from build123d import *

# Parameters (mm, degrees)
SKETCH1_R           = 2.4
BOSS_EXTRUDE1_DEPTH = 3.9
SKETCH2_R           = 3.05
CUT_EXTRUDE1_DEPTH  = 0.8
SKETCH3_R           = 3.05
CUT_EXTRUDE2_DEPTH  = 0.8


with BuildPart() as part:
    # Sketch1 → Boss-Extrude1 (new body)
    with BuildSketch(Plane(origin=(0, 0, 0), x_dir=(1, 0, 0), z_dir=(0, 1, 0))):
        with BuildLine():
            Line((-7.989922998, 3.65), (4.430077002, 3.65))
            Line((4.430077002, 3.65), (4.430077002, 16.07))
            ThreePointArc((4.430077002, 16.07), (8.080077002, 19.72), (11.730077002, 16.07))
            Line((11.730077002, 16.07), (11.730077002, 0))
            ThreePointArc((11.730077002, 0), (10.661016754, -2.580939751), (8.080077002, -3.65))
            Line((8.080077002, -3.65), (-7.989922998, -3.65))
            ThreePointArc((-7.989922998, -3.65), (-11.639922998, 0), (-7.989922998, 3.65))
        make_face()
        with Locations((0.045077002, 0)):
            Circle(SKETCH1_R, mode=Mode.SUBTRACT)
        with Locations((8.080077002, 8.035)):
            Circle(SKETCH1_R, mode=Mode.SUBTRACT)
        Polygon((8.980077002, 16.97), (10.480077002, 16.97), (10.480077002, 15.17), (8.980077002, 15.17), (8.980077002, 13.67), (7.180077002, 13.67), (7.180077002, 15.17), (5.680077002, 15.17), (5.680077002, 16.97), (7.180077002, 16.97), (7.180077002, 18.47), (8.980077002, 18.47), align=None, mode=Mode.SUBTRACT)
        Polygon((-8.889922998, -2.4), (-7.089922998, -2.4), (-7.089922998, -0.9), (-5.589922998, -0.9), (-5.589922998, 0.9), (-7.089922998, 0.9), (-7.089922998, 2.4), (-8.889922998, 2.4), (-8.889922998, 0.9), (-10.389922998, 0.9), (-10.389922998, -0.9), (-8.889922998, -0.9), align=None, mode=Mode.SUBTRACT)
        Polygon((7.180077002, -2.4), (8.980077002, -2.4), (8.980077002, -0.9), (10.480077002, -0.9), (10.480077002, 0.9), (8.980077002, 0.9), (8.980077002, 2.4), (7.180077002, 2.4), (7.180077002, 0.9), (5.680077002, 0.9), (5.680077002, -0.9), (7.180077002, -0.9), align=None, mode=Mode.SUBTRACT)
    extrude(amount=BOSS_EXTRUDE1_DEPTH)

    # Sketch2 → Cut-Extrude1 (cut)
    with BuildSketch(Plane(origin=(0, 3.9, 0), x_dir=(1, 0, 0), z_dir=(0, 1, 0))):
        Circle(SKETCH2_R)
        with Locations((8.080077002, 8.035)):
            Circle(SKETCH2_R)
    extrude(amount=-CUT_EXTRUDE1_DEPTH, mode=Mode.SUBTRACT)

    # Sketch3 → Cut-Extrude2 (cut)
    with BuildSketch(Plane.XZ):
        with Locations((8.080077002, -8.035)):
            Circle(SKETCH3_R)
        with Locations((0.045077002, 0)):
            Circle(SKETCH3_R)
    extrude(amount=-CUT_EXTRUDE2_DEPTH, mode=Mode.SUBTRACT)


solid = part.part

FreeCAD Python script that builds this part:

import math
import FreeCAD as App
import Part
import Sketcher

V = App.Vector
Q = App.Units.Quantity

doc = App.newDocument("Part")
body = doc.addObject("PartDesign::Body", "Body")

# Sketch on XZ plane
sketch1 = body.newObject("Sketcher::SketchObject", "Sketch")
sketch1.AttachmentSupport = (doc.getObject("XZ_Plane"), [""])
sketch1.MapMode = "FlatFace"
sketch1.addGeometry([
    Part.LineSegment(V(4.430077, -3.65, 0), V(-7.989923, -3.65, 0)),  # 0
    Part.ArcOfCircle(Part.Circle(V(-7.989923, 0, 0), V(0, 0, 1), 3.65), math.radians(90), math.radians(270)),  # 1
    Part.LineSegment(V(-7.989923, 3.65, 0), V(8.080077, 3.65, 0)),  # 2
    Part.ArcOfCircle(Part.Circle(V(8.080077, 0, 0), V(0, 0, 1), 3.65), math.radians(0), math.radians(90)),  # 3
    Part.LineSegment(V(11.730077, 0, 0), V(11.730077, -16.07, 0)),  # 4
    Part.ArcOfCircle(Part.Circle(V(8.080077, -16.07, 0), V(0, 0, 1), 3.65), math.radians(180), math.radians(360)),  # 5
    Part.LineSegment(V(4.430077, -16.07, 0), V(4.430077, -3.65, 0)),  # 6
    Part.LineSegment(V(7.180077, 2.4, 0), V(7.180077, 0.9, 0)),  # 7
    Part.LineSegment(V(7.180077, 0.9, 0), V(5.680077, 0.9, 0)),  # 8
    Part.LineSegment(V(5.680077, 0.9, 0), V(5.680077, -0.9, 0)),  # 9
    Part.LineSegment(V(5.680077, -0.9, 0), V(7.180077, -0.9, 0)),  # 10
    Part.LineSegment(V(7.180077, -0.9, 0), V(7.180077, -2.4, 0)),  # 11
    Part.LineSegment(V(7.180077, -2.4, 0), V(8.980077, -2.4, 0)),  # 12
    Part.LineSegment(V(8.980077, -2.4, 0), V(8.980077, -0.9, 0)),  # 13
    Part.LineSegment(V(8.980077, -0.9, 0), V(10.480077, -0.9, 0)),  # 14
    Part.LineSegment(V(10.480077, -0.9, 0), V(10.480077, 0.9, 0)),  # 15
    Part.LineSegment(V(10.480077, 0.9, 0), V(8.980077, 0.9, 0)),  # 16
    Part.LineSegment(V(8.980077, 0.9, 0), V(8.980077, 2.4, 0)),  # 17
    Part.LineSegment(V(8.980077, 2.4, 0), V(7.180077, 2.4, 0)),  # 18
    Part.Circle(V(0.045077, 0, 0), V(0, 0, 1), 2.4),  # 19
    Part.LineSegment(V(-8.889923, 2.4, 0), V(-8.889923, 0.9, 0)),  # 20
    Part.LineSegment(V(-8.889923, 0.9, 0), V(-10.389923, 0.9, 0)),  # 21
    Part.LineSegment(V(-10.389923, 0.9, 0), V(-10.389923, -0.9, 0)),  # 22
    Part.LineSegment(V(-10.389923, -0.9, 0), V(-8.889923, -0.9, 0)),  # 23
    Part.LineSegment(V(-8.889923, -0.9, 0), V(-8.889923, -2.4, 0)),  # 24
    Part.LineSegment(V(-8.889923, -2.4, 0), V(-7.089923, -2.4, 0)),  # 25
    Part.LineSegment(V(-7.089923, -2.4, 0), V(-7.089923, -0.9, 0)),  # 26
    Part.LineSegment(V(-7.089923, -0.9, 0), V(-5.589923, -0.9, 0)),  # 27
    Part.LineSegment(V(-5.589923, -0.9, 0), V(-5.589923, 0.9, 0)),  # 28
    Part.LineSegment(V(-5.589923, 0.9, 0), V(-7.089923, 0.9, 0)),  # 29
    Part.LineSegment(V(-7.089923, 0.9, 0), V(-7.089923, 2.4, 0)),  # 30
    Part.LineSegment(V(-7.089923, 2.4, 0), V(-8.889923, 2.4, 0)),  # 31
    Part.Circle(V(8.080077, -8.035, 0), V(0, 0, 1), 2.4),  # 32
    Part.LineSegment(V(8.980077, -16.97, 0), V(10.480077, -16.97, 0)),  # 33
    Part.LineSegment(V(10.480077, -16.97, 0), V(10.480077, -15.17, 0)),  # 34
    Part.LineSegment(V(10.480077, -15.17, 0), V(8.980077, -15.17, 0)),  # 35
    Part.LineSegment(V(8.980077, -15.17, 0), V(8.980077, -13.67, 0)),  # 36
    Part.LineSegment(V(8.980077, -13.67, 0), V(7.180077, -13.67, 0)),  # 37
    Part.LineSegment(V(7.180077, -13.67, 0), V(7.180077, -15.17, 0)),  # 38
    Part.LineSegment(V(7.180077, -15.17, 0), V(5.680077, -15.17, 0)),  # 39
    Part.LineSegment(V(5.680077, -15.17, 0), V(5.680077, -16.97, 0)),  # 40
    Part.LineSegment(V(5.680077, -16.97, 0), V(7.180077, -16.97, 0)),  # 41
    Part.LineSegment(V(7.180077, -16.97, 0), V(7.180077, -18.47, 0)),  # 42
    Part.LineSegment(V(7.180077, -18.47, 0), V(8.980077, -18.47, 0)),  # 43
    Part.LineSegment(V(8.980077, -18.47, 0), V(8.980077, -16.97, 0)),  # 44
], False)
sketch1.addConstraint([
    Sketcher.Constraint("Tangent", 0, 2, 1, 2),
    Sketcher.Constraint("Tangent", 1, 1, 2, 1),
    Sketcher.Constraint("Tangent", 2, 2, 3, 2),
    Sketcher.Constraint("Tangent", 3, 1, 4, 1),
    Sketcher.Constraint("Tangent", 4, 2, 5, 2),
    Sketcher.Constraint("Tangent", 5, 1, 6, 1),
    Sketcher.Constraint("Coincident", 6, 2, 0, 1),
    Sketcher.Constraint("Coincident", 7, 2, 8, 1),
    Sketcher.Constraint("Coincident", 8, 2, 9, 1),
    Sketcher.Constraint("Coincident", 9, 2, 10, 1),
    Sketcher.Constraint("Coincident", 10, 2, 11, 1),
    Sketcher.Constraint("Coincident", 11, 2, 12, 1),
    Sketcher.Constraint("Coincident", 12, 2, 13, 1),
    Sketcher.Constraint("Coincident", 13, 2, 14, 1),
    Sketcher.Constraint("Coincident", 14, 2, 15, 1),
    Sketcher.Constraint("Coincident", 15, 2, 16, 1),
    Sketcher.Constraint("Coincident", 16, 2, 17, 1),
    Sketcher.Constraint("Coincident", 17, 2, 18, 1),
    Sketcher.Constraint("Coincident", 18, 2, 7, 1),
    Sketcher.Constraint("Coincident", 20, 2, 21, 1),
    Sketcher.Constraint("Coincident", 21, 2, 22, 1),
    Sketcher.Constraint("Coincident", 22, 2, 23, 1),
    Sketcher.Constraint("Coincident", 23, 2, 24, 1),
    Sketcher.Constraint("Coincident", 24, 2, 25, 1),
    Sketcher.Constraint("Coincident", 25, 2, 26, 1),
    Sketcher.Constraint("Coincident", 26, 2, 27, 1),
    Sketcher.Constraint("Coincident", 27, 2, 28, 1),
    Sketcher.Constraint("Coincident", 28, 2, 29, 1),
    Sketcher.Constraint("Coincident", 29, 2, 30, 1),
    Sketcher.Constraint("Coincident", 30, 2, 31, 1),
    Sketcher.Constraint("Coincident", 31, 2, 20, 1),
    Sketcher.Constraint("Coincident", 33, 2, 34, 1),
    Sketcher.Constraint("Coincident", 34, 2, 35, 1),
    Sketcher.Constraint("Coincident", 35, 2, 36, 1),
    Sketcher.Constraint("Coincident", 36, 2, 37, 1),
    Sketcher.Constraint("Coincident", 37, 2, 38, 1),
    Sketcher.Constraint("Coincident", 38, 2, 39, 1),
    Sketcher.Constraint("Coincident", 39, 2, 40, 1),
    Sketcher.Constraint("Coincident", 40, 2, 41, 1),
    Sketcher.Constraint("Coincident", 41, 2, 42, 1),
    Sketcher.Constraint("Coincident", 42, 2, 43, 1),
    Sketcher.Constraint("Coincident", 43, 2, 44, 1),
    Sketcher.Constraint("Coincident", 44, 2, 33, 1),
    Sketcher.Constraint("Horizontal", 0),
    Sketcher.Constraint("Horizontal", 2),
    Sketcher.Constraint("Vertical", 4),
    Sketcher.Constraint("Vertical", 6),
    Sketcher.Constraint("Vertical", 7),
    Sketcher.Constraint("Horizontal", 8),
    Sketcher.Constraint("Vertical", 9),
    Sketcher.Constraint("Horizontal", 10),
    Sketcher.Constraint("Vertical", 11),
    Sketcher.Constraint("Horizontal", 12),
    Sketcher.Constraint("Vertical", 13),
    Sketcher.Constraint("Horizontal", 14),
    Sketcher.Constraint("Vertical", 15),
    Sketcher.Constraint("Horizontal", 16),
    Sketcher.Constraint("Vertical", 17),
    Sketcher.Constraint("Horizontal", 18),
    Sketcher.Constraint("Vertical", 20),
    Sketcher.Constraint("Horizontal", 21),
    Sketcher.Constraint("Vertical", 22),
    Sketcher.Constraint("Horizontal", 23),
    Sketcher.Constraint("Vertical", 24),
    Sketcher.Constraint("Horizontal", 25),
    Sketcher.Constraint("Vertical", 26),
    Sketcher.Constraint("Horizontal", 27),
    Sketcher.Constraint("Vertical", 28),
    Sketcher.Constraint("Horizontal", 29),
    Sketcher.Constraint("Vertical", 30),
    Sketcher.Constraint("Horizontal", 31),
    Sketcher.Constraint("Horizontal", 33),
    Sketcher.Constraint("Vertical", 34),
    Sketcher.Constraint("Horizontal", 35),
    Sketcher.Constraint("Vertical", 36),
    Sketcher.Constraint("Horizontal", 37),
    Sketcher.Constraint("Vertical", 38),
    Sketcher.Constraint("Horizontal", 39),
    Sketcher.Constraint("Vertical", 40),
    Sketcher.Constraint("Horizontal", 41),
    Sketcher.Constraint("Vertical", 42),
    Sketcher.Constraint("Horizontal", 43),
    Sketcher.Constraint("Vertical", 44),
    Sketcher.Constraint("Equal", 1, 3),
    Sketcher.Constraint("Equal", 3, 5),
    Sketcher.Constraint("Equal", 19, 32),
    Sketcher.Constraint("Symmetric", 7, 2, 10, 2, -1),
    Sketcher.Constraint("Symmetric", 13, 2, 16, 2, -1),
    Sketcher.Constraint("Symmetric", 20, 2, 23, 2, -1),
    Sketcher.Constraint("Symmetric", 26, 2, 29, 2, -1),
    Sketcher.Constraint("PointOnObject", 1, 3, -1),
    Sketcher.Constraint("PointOnObject", 19, 3, -1),
    Sketcher.Constraint("Horizontal", 10, 2, 13, 2),
    Sketcher.Constraint("Horizontal", 16, 2, 20, 2),
    Sketcher.Constraint("Horizontal", 12, 2, 24, 2),
    Sketcher.Constraint("Horizontal", 23, 2, 26, 2),
    Sketcher.Constraint("Horizontal", 18, 2, 30, 2),
    Sketcher.Constraint("Horizontal", 35, 2, 38, 2),
    Sketcher.Constraint("Horizontal", 33, 2, 40, 2),
    Sketcher.Constraint("Vertical", 5, 3, 32, 3),
    Sketcher.Constraint("Vertical", 15, 2, 33, 2),
    Sketcher.Constraint("Vertical", 17, 2, 35, 2),
    Sketcher.Constraint("Vertical", 18, 2, 37, 2),
    Sketcher.Constraint("Vertical", 9, 2, 39, 2),
    Sketcher.Constraint("Vertical", 38, 2, 41, 2),
    Sketcher.Constraint("Vertical", 36, 2, 43, 2),
    Sketcher.Constraint("Equal", 10, 14),
    Sketcher.Constraint("Equal", 16, 21),
    Sketcher.Constraint("Equal", 18, 25),
    Sketcher.Constraint("Equal", 23, 27),
    Sketcher.Constraint("Equal", 2, 4),
    Sketcher.Constraint("Equal", 41, 7),
    Sketcher.Constraint("Equal", 43, 9),
    Sketcher.Constraint("Equal", 7, 11),
    Sketcher.Constraint("Equal", 28, 34),
    Sketcher.Constraint("Equal", 30, 36),
    Sketcher.Constraint("Equal", 38, 42),
    Sketcher.Constraint("Diameter", 19, Q("4.8 mm")),
    Sketcher.Constraint("Radius", 1, Q("3.65 mm")),
    Sketcher.Constraint("DistanceX", 8, 2, 8, 1, Q("1.5 mm")),
    Sketcher.Constraint("DistanceX", 12, 1, 12, 2, Q("1.8 mm")),
    Sketcher.Constraint("DistanceX", 0, 2, 0, 1, Q("12.42 mm")),
    Sketcher.Constraint("DistanceX", 7, 2, 3, 3, Q("0.9 mm")),
    Sketcher.Constraint("DistanceX", 20, 2, 1, 3, Q("0.9 mm")),
    Sketcher.Constraint("DistanceY", 33, 2, 4, 2, Q("0.9 mm")),
    Sketcher.Constraint("DistanceY", 32, 3, -1, 1, Q("8.035 mm")),
    Sketcher.Constraint("DistanceX", 1, 3, 19, 3, Q("8.035 mm")),
    Sketcher.Constraint("DistanceX", 1, 3, -1, 1, Q("7.989923 mm")),
])
pad1 = body.newObject("PartDesign::Pad", "Pad")
pad1.Profile = sketch1
pad1.Length = 3.9
pad1.Reversed = True

# Sketch on XZ plane
sketch2 = body.newObject("Sketcher::SketchObject", "Sketch001")
sketch2.AttachmentSupport = (doc.getObject("XZ_Plane"), [""])
sketch2.MapMode = "FlatFace"
sketch2.AttachmentOffset = App.Placement(V(0, 0, -3.9), App.Rotation())
sketch2.addGeometry([
    Part.Circle(V(0, 0, 0), V(0, 0, 1), 3.05),
    Part.Circle(V(8.080077, -8.035, 0), V(0, 0, 1), 3.05),
], False)
sketch2.addConstraint([
    Sketcher.Constraint("Coincident", 0, 3, -1, 1),
    Sketcher.Constraint("Equal", 0, 1),
    Sketcher.Constraint("Diameter", 0, Q("6.1 mm")),
    Sketcher.Constraint("DistanceY", 1, 3, -1, 1, Q("8.035 mm")),
    Sketcher.Constraint("DistanceX", -1, 1, 1, 3, Q("8.080077 mm")),
])
pocket1 = body.newObject("PartDesign::Pocket", "Pocket")
pocket1.Profile = sketch2
pocket1.Length = 0.8
pocket1.Reversed = True

# Sketch on XZ plane
sketch3 = body.newObject("Sketcher::SketchObject", "Sketch002")
sketch3.AttachmentSupport = (doc.getObject("XZ_Plane"), [""])
sketch3.MapMode = "FlatFace"
sketch3.addGeometry([
    Part.Circle(V(8.080077, -8.035, 0), V(0, 0, 1), 3.05),
    Part.Circle(V(0.045077, 0, 0), V(0, 0, 1), 3.05),
], False)
sketch3.addConstraint([
    Sketcher.Constraint("Equal", 0, 1),
    Sketcher.Constraint("PointOnObject", 1, 3, -1),
    Sketcher.Constraint("Diameter", 0, Q("6.1 mm")),
    Sketcher.Constraint("DistanceY", 0, 3, -1, 1, Q("8.035 mm")),
    Sketcher.Constraint("DistanceX", 1, 3, 0, 3, Q("8.035 mm")),
    Sketcher.Constraint("DistanceX", -1, 1, 0, 3, Q("8.080077 mm")),
])
pocket2 = body.newObject("PartDesign::Pocket", "Pocket001")
pocket2.Profile = sketch3
pocket2.Length = 0.8

doc.recompute()
